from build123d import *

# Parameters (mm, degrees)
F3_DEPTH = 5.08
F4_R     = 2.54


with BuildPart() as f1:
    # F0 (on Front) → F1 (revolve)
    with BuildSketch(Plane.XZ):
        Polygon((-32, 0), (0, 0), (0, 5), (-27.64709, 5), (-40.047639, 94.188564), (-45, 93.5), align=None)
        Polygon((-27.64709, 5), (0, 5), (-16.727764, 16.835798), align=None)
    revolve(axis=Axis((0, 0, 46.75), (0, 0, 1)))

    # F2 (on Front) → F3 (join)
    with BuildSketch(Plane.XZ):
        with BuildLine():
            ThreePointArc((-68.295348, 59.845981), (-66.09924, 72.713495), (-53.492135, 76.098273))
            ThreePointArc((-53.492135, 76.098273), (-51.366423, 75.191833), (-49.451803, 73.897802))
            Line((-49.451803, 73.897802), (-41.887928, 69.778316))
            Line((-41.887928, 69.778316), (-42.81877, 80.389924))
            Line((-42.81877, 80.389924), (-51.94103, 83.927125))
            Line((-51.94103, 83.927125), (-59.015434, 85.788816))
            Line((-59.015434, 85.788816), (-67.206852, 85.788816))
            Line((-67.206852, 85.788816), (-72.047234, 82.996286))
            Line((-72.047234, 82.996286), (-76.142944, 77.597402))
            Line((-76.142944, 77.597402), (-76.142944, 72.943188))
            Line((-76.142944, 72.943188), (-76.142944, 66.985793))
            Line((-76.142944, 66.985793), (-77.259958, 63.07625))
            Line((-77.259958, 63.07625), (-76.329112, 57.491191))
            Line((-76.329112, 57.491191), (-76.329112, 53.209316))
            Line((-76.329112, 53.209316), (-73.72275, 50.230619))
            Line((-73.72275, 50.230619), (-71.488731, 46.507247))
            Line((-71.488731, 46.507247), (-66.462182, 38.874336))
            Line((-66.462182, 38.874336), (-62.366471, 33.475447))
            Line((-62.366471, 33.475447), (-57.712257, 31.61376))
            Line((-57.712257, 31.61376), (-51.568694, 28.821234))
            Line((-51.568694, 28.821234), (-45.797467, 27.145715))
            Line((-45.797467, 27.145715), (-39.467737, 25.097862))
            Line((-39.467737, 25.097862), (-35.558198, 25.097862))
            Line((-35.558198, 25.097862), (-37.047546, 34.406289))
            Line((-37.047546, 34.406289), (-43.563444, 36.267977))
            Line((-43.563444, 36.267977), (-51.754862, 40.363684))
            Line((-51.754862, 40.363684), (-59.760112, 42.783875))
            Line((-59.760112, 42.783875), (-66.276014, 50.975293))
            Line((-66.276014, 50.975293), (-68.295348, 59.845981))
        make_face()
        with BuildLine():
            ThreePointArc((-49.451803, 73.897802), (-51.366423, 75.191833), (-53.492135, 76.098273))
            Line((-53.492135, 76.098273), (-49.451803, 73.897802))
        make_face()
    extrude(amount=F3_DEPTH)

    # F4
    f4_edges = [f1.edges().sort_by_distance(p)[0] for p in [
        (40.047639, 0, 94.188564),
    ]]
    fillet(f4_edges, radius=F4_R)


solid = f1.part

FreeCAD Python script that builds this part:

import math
import FreeCAD as App
import Part
import Sketcher

V = App.Vector


def edges_at(feature, points):
    """Names of the edges that pass closest to the given points."""
    edges = feature.Shape.Edges
    near = lambda p: min(range(len(edges)), key=lambda i: edges[i].distToShape(Part.Vertex(*p))[0])
    return sorted({f"Edge{near(p) + 1}" for p in points})

doc = App.newDocument("Part")
body = doc.addObject("PartDesign::Body", "Body")

# Sketch on XZ plane
sketch1 = body.newObject("Sketcher::SketchObject", "Sketch")
sketch1.AttachmentSupport = (doc.getObject("XZ_Plane"), [""])
sketch1.MapMode = "FlatFace"
sketch1.addGeometry(Part.LineSegment(V(-32, 0, 0), V(0, 0, 0)), False)
sketch1.addGeometry(Part.LineSegment(V(0, 0, 0), V(0, 5, 0)), False)
sketch1.addGeometry(Part.LineSegment(V(0, 5, 0), V(-16.727764, 16.835798, 0)), False)
sketch1.addGeometry(Part.LineSegment(V(-16.727764, 16.835798, 0), V(-27.64709, 5, 0)), False)
sketch1.addGeometry(Part.LineSegment(V(-27.64709, 5, 0), V(-40.047639, 94.188564, 0)), False)
sketch1.addGeometry(Part.LineSegment(V(-40.047639, 94.188564, 0), V(-45, 93.5, 0)), False)
sketch1.addGeometry(Part.LineSegment(V(-45, 93.5, 0), V(-32, 0, 0)), False)
sketch1.addConstraint(Sketcher.Constraint("Coincident", 0, 2, 1, 1))
sketch1.addConstraint(Sketcher.Constraint("Coincident", 1, 2, 2, 1))
sketch1.addConstraint(Sketcher.Constraint("Coincident", 2, 2, 3, 1))
sketch1.addConstraint(Sketcher.Constraint("Coincident", 3, 2, 4, 1))
sketch1.addConstraint(Sketcher.Constraint("Coincident", 4, 2, 5, 1))
sketch1.addConstraint(Sketcher.Constraint("Coincident", 5, 2, 6, 1))
sketch1.addConstraint(Sketcher.Constraint("Coincident", 6, 2, 0, 1))
sketch1.addConstraint(Sketcher.Constraint("Horizontal", 0))
sketch1.addConstraint(Sketcher.Constraint("Vertical", 1))
sketch1.addConstraint(Sketcher.Constraint("Coincident", 0, 2, -1, 1))
sketch1.addConstraint(Sketcher.Constraint("Perpendicular", 4, 5))
sketch1.addConstraint(Sketcher.Constraint("Perpendicular", 5, 6))
sketch1.addConstraint(Sketcher.Constraint("Horizontal", 1, 2, 3, 2))
sketch1.addConstraint(Sketcher.Constraint("DistanceX", 0, 1, 0, 2, 32.0))
sketch1.addConstraint(Sketcher.Constraint("DistanceY", 1, 1, 1, 2, 5.0))
sketch1.addConstraint(Sketcher.Constraint("Distance", 5, 5.0))
sketch1.addConstraint(Sketcher.Constraint("DistanceX", 5, 2, -1, 1, 45.0))
sketch1.addConstraint(Sketcher.Constraint("DistanceY", -1, 1, 5, 2, 93.5))
sketch1.addConstraint(Sketcher.Constraint("DistanceY", -1, 1, 2, 2, 16.835798))
sketch1.addConstraint(Sketcher.Constraint("Distance", 2, 20.491564))
revolution = body.newObject("PartDesign::Revolution", "Revolution")
revolution.Profile = sketch1
revolution.ReferenceAxis = (sketch1, ["V_Axis"])
revolution.Angle = 360

# Sketch on XZ plane
sketch2 = body.newObject("Sketcher::SketchObject", "Sketch001")
sketch2.AttachmentSupport = (doc.getObject("XZ_Plane"), [""])
sketch2.MapMode = "FlatFace"
sketch2.addGeometry(Part.ArcOfCircle(Part.Circle(V(-57.15375, 64.565599, 0), V(0, 0, 1), 12.1), math.radians(72.385396), math.radians(202.957678)), False)
sketch2.addGeometry(Part.LineSegment(V(-53.492135, 76.098273, 0), V(-49.451803, 73.897802, 0)), False)
sketch2.addGeometry(Part.LineSegment(V(-49.451803, 73.897802, 0), V(-41.887928, 69.778316, 0)), False)
sketch2.addGeometry(Part.LineSegment(V(-41.887928, 69.778316, 0), V(-42.81877, 80.389924, 0)), False)
sketch2.addGeometry(Part.LineSegment(V(-42.81877, 80.389924, 0), V(-51.94103, 83.927125, 0)), False)
sketch2.addGeometry(Part.LineSegment(V(-51.94103, 83.927125, 0), V(-59.015434, 85.788816, 0)), False)
sketch2.addGeometry(Part.LineSegment(V(-59.015434, 85.788816, 0), V(-67.206852, 85.788816, 0)), False)
sketch2.addGeometry(Part.LineSegment(V(-67.206852, 85.788816, 0), V(-72.047234, 82.996286, 0)), False)
sketch2.addGeometry(Part.LineSegment(V(-72.047234, 82.996286, 0), V(-76.142944, 77.597402, 0)), False)
sketch2.addGeometry(Part.LineSegment(V(-76.142944, 77.597402, 0), V(-76.142944, 66.985793, 0)), False)
sketch2.addGeometry(Part.LineSegment(V(-76.142944, 66.985793, 0), V(-77.259958, 63.07625, 0)), False)
sketch2.addGeometry(Part.LineSegment(V(-77.259958, 63.07625, 0), V(-76.329112, 57.491191, 0)), False)
sketch2.addGeometry(Part.LineSegment(V(-76.329112, 57.491191, 0), V(-76.329112, 53.209316, 0)), False)
sketch2.addGeometry(Part.LineSegment(V(-76.329112, 53.209316, 0), V(-73.72275, 50.230619, 0)), False)
sketch2.addGeometry(Part.LineSegment(V(-73.72275, 50.230619, 0), V(-71.488731, 46.507247, 0)), False)
sketch2.addGeometry(Part.LineSegment(V(-71.488731, 46.507247, 0), V(-66.462182, 38.874336, 0)), False)
sketch2.addGeometry(Part.LineSegment(V(-66.462182, 38.874336, 0), V(-62.366471, 33.475447, 0)), False)
sketch2.addGeometry(Part.LineSegment(V(-62.366471, 33.475447, 0), V(-57.712257, 31.61376, 0)), False)
sketch2.addGeometry(Part.LineSegment(V(-57.712257, 31.61376, 0), V(-51.568694, 28.821234, 0)), False)
sketch2.addGeometry(Part.LineSegment(V(-51.568694, 28.821234, 0), V(-45.797467, 27.145715, 0)), False)
sketch2.addGeometry(Part.LineSegment(V(-45.797467, 27.145715, 0), V(-39.467737, 25.097862, 0)), False)
sketch2.addGeometry(Part.LineSegment(V(-39.467737, 25.097862, 0), V(-35.558198, 25.097862, 0)), False)
sketch2.addGeometry(Part.LineSegment(V(-35.558198, 25.097862, 0), V(-37.047546, 34.406289, 0)), False)
sketch2.addGeometry(Part.LineSegment(V(-37.047546, 34.406289, 0), V(-43.563444, 36.267977, 0)), False)
sketch2.addGeometry(Part.LineSegment(V(-43.563444, 36.267977, 0), V(-51.754862, 40.363684, 0)), False)
sketch2.addGeometry(Part.LineSegment(V(-51.754862, 40.363684, 0), V(-59.760112, 42.783875, 0)), False)
sketch2.addGeometry(Part.LineSegment(V(-59.760112, 42.783875, 0), V(-66.276014, 50.975293, 0)), False)
sketch2.addGeometry(Part.LineSegment(V(-66.276014, 50.975293, 0), V(-68.295348, 59.845981, 0)), False)
sketch2.addConstraint(Sketcher.Constraint("Coincident", 0, 1, 1, 1))
sketch2.addConstraint(Sketcher.Constraint("Coincident", 1, 2, 2, 1))
sketch2.addConstraint(Sketcher.Constraint("Coincident", 2, 2, 3, 1))
sketch2.addConstraint(Sketcher.Constraint("Coincident", 3, 2, 4, 1))
sketch2.addConstraint(Sketcher.Constraint("Coincident", 4, 2, 5, 1))
sketch2.addConstraint(Sketcher.Constraint("Coincident", 5, 2, 6, 1))
sketch2.addConstraint(Sketcher.Constraint("Coincident", 6, 2, 7, 1))
sketch2.addConstraint(Sketcher.Constraint("Coincident", 7, 2, 8, 1))
sketch2.addConstraint(Sketcher.Constraint("Coincident", 8, 2, 9, 1))
sketch2.addConstraint(Sketcher.Constraint("Coincident", 9, 2, 10, 1))
sketch2.addConstraint(Sketcher.Constraint("Coincident", 10, 2, 11, 1))
sketch2.addConstraint(Sketcher.Constraint("Coincident", 11, 2, 12, 1))
sketch2.addConstraint(Sketcher.Constraint("Coincident", 12, 2, 13, 1))
sketch2.addConstraint(Sketcher.Constraint("Coincident", 13, 2, 14, 1))
sketch2.addConstraint(Sketcher.Constraint("Coincident", 14, 2, 15, 1))
sketch2.addConstraint(Sketcher.Constraint("Coincident", 15, 2, 16, 1))
sketch2.addConstraint(Sketcher.Constraint("Coincident", 16, 2, 17, 1))
sketch2.addConstraint(Sketcher.Constraint("Coincident", 17, 2, 18, 1))
sketch2.addConstraint(Sketcher.Constraint("Coincident", 18, 2, 19, 1))
sketch2.addConstraint(Sketcher.Constraint("Coincident", 19, 2, 20, 1))
sketch2.addConstraint(Sketcher.Constraint("Coincident", 20, 2, 21, 1))
sketch2.addConstraint(Sketcher.Constraint("Coincident", 21, 2, 22, 1))
sketch2.addConstraint(Sketcher.Constraint("Coincident", 22, 2, 23, 1))
sketch2.addConstraint(Sketcher.Constraint("Coincident", 23, 2, 24, 1))
sketch2.addConstraint(Sketcher.Constraint("Coincident", 24, 2, 25, 1))
sketch2.addConstraint(Sketcher.Constraint("Coincident", 25, 2, 26, 1))
sketch2.addConstraint(Sketcher.Constraint("Coincident", 26, 2, 27, 1))
sketch2.addConstraint(Sketcher.Constraint("Coincident", 27, 2, 0, 2))
sketch2.addConstraint(Sketcher.Constraint("Horizontal", 6))
sketch2.addConstraint(Sketcher.Constraint("Vertical", 9))
sketch2.addConstraint(Sketcher.Constraint("Vertical", 12))
sketch2.addConstraint(Sketcher.Constraint("Horizontal", 21))
sketch2.addConstraint(Sketcher.Constraint("Parallel", 1, 2))
sketch2.addConstraint(Sketcher.Constraint("Perpendicular", 10, 23))
sketch2.addConstraint(Sketcher.Constraint("Equal", 8, 23))
sketch2.addConstraint(Sketcher.Constraint("Radius", 0, 12.1))
sketch2.addConstraint(Sketcher.Constraint("Distance", 13, 3.957999))
sketch2.addConstraint(Sketcher.Constraint("DistanceX", 13, 2, 0, 3, 16.569))
sketch2.addConstraint(Sketcher.Constraint("Distance", 11, 5.662098))
sketch2.addConstraint(Sketcher.Constraint("DistanceX", 21, 1, 21, 2, 3.909539))
sketch2.addConstraint(Sketcher.Constraint("DistanceY", 9, 2, 9, 1, 10.611609))
sketch2.addConstraint(Sketcher.Constraint("DistanceY", -1, 1, 0, 3, 64.565599))
sketch2.addConstraint(Sketcher.Constraint("DistanceY", -1, 1, 1, 2, 73.897802))
sketch2.addConstraint(Sketcher.Constraint("DistanceY", 3, 2, 4, 2, 3.537201))
sketch2.addConstraint(Sketcher.Constraint("DistanceX", 4, 2, 2, 2, 10.053102))
sketch2.addConstraint(Sketcher.Constraint("DistanceX", 5, 2, 0, 1, 5.523299))
sketch2.addConstraint(Sketcher.Constraint("DistanceX", 6, 2, 0, 3, 10.053102))
sketch2.addConstraint(Sketcher.Constraint("DistanceX", 7, 2, 5, 2, 13.0318))
sketch2.addConstraint(Sketcher.Constraint("DistanceY", 16, 2, 14, 2, 13.0318))
sketch2.addConstraint(Sketcher.Constraint("DistanceY", 18, 2, 15, 2, 10.053102))
sketch2.addConstraint(Sketcher.Constraint("Distance", 1, 4.600691))
sketch2.addConstraint(Sketcher.Constraint("Distance", 2, 8.612919))
sketch2.addConstraint(Sketcher.Constraint("Distance", 4, 9.784039))
sketch2.addConstraint(Sketcher.Constraint("Distance", 7, 5.588159))
sketch2.addConstraint(Sketcher.Constraint("Distance", 14, 4.342158))
sketch2.addConstraint(Sketcher.Constraint("Distance", 15, 9.139339))
sketch2.addConstraint(Sketcher.Constraint("Distance", 16, 6.77664))
sketch2.addConstraint(Sketcher.Constraint("Distance", 18, 6.748449))
sketch2.addConstraint(Sketcher.Constraint("Distance", 22, 9.426822))
sketch2.addConstraint(Sketcher.Constraint("DistanceX", 6, 2, 6, 1, 8.191418))
sketch2.addConstraint(Sketcher.Constraint("DistanceY", 12, 2, 12, 1, 4.281875))
sketch2.addConstraint(Sketcher.Constraint("DistanceX", 0, 3, -1, 1, 57.15375))
sketch2.addConstraint(Sketcher.Constraint("DistanceY", -1, 1, 10, 2, 63.07625))
sketch2.addConstraint(Sketcher.Constraint("DistanceX", 11, 2, -1, 1, 76.329112))
sketch2.addConstraint(Sketcher.Constraint("DistanceY", -1, 1, 11, 2, 57.491191))
sketch2.addConstraint(Sketcher.Constraint("DistanceX", 14, 2, -1, 1, 71.488731))
sketch2.addConstraint(Sketcher.Constraint("DistanceX", 15, 2, -1, 1, 66.462182))
sketch2.addConstraint(Sketcher.Constraint("DistanceY", -1, 1, 17, 2, 31.61376))
sketch2.addConstraint(Sketcher.Constraint("DistanceY", -1, 1, 20, 2, 25.097862))
sketch2.addConstraint(Sketcher.Constraint("DistanceY", -1, 1, 22, 2, 34.406289))
sketch2.addConstraint(Sketcher.Constraint("DistanceX", 27, 2, -1, 1, 68.295348))
sketch2.addConstraint(Sketcher.Constraint("DistanceY", 1, 2, 3, 2, 6.492122))
sketch2.addConstraint(Sketcher.Constraint("DistanceY", 4, 2, 5, 2, 1.861691))
sketch2.addConstraint(Sketcher.Constraint("DistanceX", 8, 2, 7, 2, 4.09571))
sketch2.addConstraint(Sketcher.Constraint("DistanceY", 0, 1, 8, 2, 1.499129))
sketch2.addConstraint(Sketcher.Constraint("DistanceY", 19, 2, 18, 2, 1.675519))
sketch2.addConstraint(Sketcher.Constraint("DistanceX", 17, 2, 19, 2, 11.91479))
sketch2.addConstraint(Sketcher.Constraint("DistanceX", 19, 2, 20, 2, 6.32973))
sketch2.addConstraint(Sketcher.Constraint("DistanceX", 24, 2, 23, 2, 8.191418))
sketch2.addConstraint(Sketcher.Constraint("DistanceY", 18, 2, 24, 2, 11.54245))
sketch2.addConstraint(Sketcher.Constraint("DistanceX", 16, 2, 24, 2, 10.611609))
sketch2.addConstraint(Sketcher.Constraint("DistanceX", 15, 2, 25, 2, 6.70207))
sketch2.addConstraint(Sketcher.Constraint("DistanceY", 15, 2, 25, 2, 3.909539))
sketch2.addConstraint(Sketcher.Constraint("DistanceY", 26, 2, 27, 2, 8.870688))
sketch2.addConstraint(Sketcher.Constraint("Distance", 26, 10.466915))
pad1 = body.newObject("PartDesign::Pad", "Pad")
pad1.Profile = sketch2
pad1.Length = 5.08
doc.recompute()

fillet = body.newObject("PartDesign::Fillet", "Fillet")
fillet.Base = (pad1, edges_at(pad1, [(40.048, 0, 94.189)]))
fillet.Radius = 2.54

doc.recompute()
